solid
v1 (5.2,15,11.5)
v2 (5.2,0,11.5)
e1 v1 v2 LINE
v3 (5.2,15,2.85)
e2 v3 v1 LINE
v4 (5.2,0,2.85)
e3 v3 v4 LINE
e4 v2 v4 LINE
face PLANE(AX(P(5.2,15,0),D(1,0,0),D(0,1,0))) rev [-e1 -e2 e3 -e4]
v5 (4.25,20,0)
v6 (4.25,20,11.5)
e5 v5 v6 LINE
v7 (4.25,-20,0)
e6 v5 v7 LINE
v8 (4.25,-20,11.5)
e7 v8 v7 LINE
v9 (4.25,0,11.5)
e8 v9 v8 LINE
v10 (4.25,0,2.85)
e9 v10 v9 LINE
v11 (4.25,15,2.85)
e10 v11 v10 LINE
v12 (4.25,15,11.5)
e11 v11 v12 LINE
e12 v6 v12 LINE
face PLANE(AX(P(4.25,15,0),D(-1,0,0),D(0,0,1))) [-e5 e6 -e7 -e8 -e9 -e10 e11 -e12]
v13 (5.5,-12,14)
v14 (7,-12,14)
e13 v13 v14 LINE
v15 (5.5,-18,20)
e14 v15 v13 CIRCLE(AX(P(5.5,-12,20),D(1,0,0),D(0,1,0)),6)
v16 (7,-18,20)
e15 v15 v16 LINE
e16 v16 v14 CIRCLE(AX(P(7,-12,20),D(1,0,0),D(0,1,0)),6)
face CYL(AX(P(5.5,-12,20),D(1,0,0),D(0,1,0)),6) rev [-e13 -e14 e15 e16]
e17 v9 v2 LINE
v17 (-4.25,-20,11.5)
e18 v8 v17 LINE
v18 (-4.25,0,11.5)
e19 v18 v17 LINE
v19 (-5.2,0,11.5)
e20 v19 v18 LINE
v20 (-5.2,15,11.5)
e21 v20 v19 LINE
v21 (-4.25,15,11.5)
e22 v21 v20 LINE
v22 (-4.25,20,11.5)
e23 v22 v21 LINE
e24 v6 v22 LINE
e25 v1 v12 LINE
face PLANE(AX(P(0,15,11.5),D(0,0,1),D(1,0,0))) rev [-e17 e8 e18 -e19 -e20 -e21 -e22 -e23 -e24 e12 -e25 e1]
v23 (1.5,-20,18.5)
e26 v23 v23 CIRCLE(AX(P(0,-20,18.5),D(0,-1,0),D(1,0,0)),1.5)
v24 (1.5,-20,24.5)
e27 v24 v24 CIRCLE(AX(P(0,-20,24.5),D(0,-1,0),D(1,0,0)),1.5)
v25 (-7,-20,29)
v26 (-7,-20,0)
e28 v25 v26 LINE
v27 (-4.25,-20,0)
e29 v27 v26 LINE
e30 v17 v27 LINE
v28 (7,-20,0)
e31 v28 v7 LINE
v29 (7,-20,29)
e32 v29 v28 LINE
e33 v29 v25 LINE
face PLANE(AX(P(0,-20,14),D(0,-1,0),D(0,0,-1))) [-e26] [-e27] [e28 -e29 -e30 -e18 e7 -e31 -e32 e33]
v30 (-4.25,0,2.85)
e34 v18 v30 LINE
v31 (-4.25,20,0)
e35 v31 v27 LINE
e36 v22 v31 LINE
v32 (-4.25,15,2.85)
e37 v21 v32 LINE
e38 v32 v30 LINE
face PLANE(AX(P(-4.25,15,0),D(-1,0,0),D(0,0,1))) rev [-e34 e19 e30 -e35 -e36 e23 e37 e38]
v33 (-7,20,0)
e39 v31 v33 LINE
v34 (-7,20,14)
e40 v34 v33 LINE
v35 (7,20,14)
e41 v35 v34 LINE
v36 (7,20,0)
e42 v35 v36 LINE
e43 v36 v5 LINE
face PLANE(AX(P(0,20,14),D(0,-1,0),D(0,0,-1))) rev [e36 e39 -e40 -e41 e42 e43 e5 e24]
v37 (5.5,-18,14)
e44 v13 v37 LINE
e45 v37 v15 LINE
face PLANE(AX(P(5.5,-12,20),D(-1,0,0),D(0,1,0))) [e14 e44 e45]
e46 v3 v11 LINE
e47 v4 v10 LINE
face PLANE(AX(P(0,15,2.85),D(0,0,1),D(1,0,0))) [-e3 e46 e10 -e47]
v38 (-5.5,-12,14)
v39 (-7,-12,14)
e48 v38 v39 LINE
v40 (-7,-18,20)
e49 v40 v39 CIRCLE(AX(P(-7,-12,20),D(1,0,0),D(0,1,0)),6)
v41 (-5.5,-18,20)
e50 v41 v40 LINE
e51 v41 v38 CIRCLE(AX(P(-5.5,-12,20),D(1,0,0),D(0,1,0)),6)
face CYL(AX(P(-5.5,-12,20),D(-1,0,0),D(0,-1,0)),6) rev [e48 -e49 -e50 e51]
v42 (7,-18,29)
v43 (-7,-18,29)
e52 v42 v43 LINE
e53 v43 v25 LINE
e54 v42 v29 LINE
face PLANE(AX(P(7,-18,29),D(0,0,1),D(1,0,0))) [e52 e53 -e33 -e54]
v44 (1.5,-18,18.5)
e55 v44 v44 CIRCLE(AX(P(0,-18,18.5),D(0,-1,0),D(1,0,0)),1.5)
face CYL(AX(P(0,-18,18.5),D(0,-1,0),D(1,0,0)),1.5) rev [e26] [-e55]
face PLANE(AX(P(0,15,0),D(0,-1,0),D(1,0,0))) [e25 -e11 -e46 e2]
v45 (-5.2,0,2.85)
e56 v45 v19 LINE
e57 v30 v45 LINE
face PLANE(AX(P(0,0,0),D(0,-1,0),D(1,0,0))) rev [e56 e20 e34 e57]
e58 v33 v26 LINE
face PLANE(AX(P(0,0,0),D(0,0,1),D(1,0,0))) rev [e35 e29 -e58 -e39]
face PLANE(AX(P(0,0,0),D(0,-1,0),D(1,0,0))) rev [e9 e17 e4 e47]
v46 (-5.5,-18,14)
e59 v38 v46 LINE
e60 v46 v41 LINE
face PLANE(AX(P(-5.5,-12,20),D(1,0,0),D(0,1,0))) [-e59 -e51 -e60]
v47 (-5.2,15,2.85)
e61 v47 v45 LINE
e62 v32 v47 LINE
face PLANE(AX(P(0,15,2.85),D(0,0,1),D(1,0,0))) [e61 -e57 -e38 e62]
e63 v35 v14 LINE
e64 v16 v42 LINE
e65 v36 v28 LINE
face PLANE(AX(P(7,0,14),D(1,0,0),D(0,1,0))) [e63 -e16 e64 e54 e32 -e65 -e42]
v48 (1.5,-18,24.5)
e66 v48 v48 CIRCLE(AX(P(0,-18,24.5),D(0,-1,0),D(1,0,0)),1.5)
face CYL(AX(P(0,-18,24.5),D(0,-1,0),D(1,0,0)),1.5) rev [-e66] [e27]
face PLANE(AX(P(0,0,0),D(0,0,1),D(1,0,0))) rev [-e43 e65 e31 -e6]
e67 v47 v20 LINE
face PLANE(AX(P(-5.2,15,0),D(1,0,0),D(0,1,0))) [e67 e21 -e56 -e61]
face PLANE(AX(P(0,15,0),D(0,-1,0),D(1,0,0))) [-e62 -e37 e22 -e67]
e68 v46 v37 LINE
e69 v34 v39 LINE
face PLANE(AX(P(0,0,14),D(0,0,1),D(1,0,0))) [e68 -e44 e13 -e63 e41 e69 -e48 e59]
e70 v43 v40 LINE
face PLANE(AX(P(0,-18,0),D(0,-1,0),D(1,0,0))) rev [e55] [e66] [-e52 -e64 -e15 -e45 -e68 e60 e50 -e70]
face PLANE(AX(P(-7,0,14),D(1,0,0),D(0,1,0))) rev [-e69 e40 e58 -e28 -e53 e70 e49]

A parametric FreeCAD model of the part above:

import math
import FreeCAD as App
import Part
import Sketcher
Q = App.Units.Quantity

doc = App.newDocument("Part")
params = doc.addObject("Spreadsheet::Sheet", "Params")
for row, (alias, value) in enumerate([
    ("sketch1_width", "14 mm"),
    ("sketch1_height", "40 mm"),
    ("pad1_length", "14 mm"),
    ("sketch2_width", "8.5 mm"),
    ("sketch2_width2", "10.4 mm"),
    ("sketch2_height", "8.65 mm"),
    ("sketch2_height2", "2.85 mm"),
    ("pocket1_length", "35 mm"),
    ("sketch3_diameter", "3 mm"),
    ("sketch3_width", "14 mm"),
    ("sketch3_height", "15 mm"),
    ("pad2_length", "2 mm"),
    ("sketch4_radius", "6 mm"),
    ("pad3_length", "1.5 mm"),
    ("sketch5_width", "8.5 mm"),
    ("sketch5_height", "11.5 mm"),
    ("sketch6_width", "0.95 mm"),
    ("sketch6_height", "8.65 mm"),
    ("pad4_length", "20 mm"),
], start=1):
    params.set(f"A{row}", alias)
    params.set(f"B{row}", "=" + value)
    params.setAlias(f"B{row}", alias)

body = doc.addObject("PartDesign::Body", "Body")

sketch1 = body.newObject("Sketcher::SketchObject", "Sketch")
sketch1.AttachmentSupport = (doc.getObject("XY_Plane"), [""])
sketch1.MapMode = "FlatFace"
sketch1.addGeometry([
    Part.LineSegment(App.Vector(-7, 20, 0), App.Vector(-7, -20, 0)),
    Part.LineSegment(App.Vector(-7, -20, 0), App.Vector(7, -20, 0)),
    Part.LineSegment(App.Vector(7, -20, 0), App.Vector(7, 20, 0)),
    Part.LineSegment(App.Vector(7, 20, 0), App.Vector(-7, 20, 0)),
], False)
sketch1.addConstraint([
    Sketcher.Constraint("Coincident", 0, 2, 1, 1),
    Sketcher.Constraint("Coincident", 1, 2, 2, 1),
    Sketcher.Constraint("Coincident", 2, 2, 3, 1),
    Sketcher.Constraint("Coincident", 3, 2, 0, 1),
    Sketcher.Constraint("Vertical", 0),
    Sketcher.Constraint("Horizontal", 1),
    Sketcher.Constraint("Vertical", 2),
    Sketcher.Constraint("Horizontal", 3),
    Sketcher.Constraint("Symmetric", 0, 2, 2, 2, -1, 1),
    Sketcher.Constraint("DistanceX", 1, 1, 1, 2, Q("14 mm")),
    Sketcher.Constraint("DistanceY", 0, 2, 0, 1, Q("40 mm")),
])
sketch1.setExpression("Constraints[9]", "Params.sketch1_width")
sketch1.setExpression("Constraints[10]", "Params.sketch1_height")
pad1 = body.newObject("PartDesign::Pad", "Pad")
pad1.Profile = sketch1
pad1.setExpression("Length", "Params.pad1_length")

sketch2 = body.newObject("Sketcher::SketchObject", "Sketch001")
sketch2.AttachmentSupport = (doc.getObject("XZ_Plane"), [""])
sketch2.MapMode = "FlatFace"
sketch2.AttachmentOffset = App.Placement(App.Vector(0, 0, 20), App.Rotation())
sketch2.addGeometry([
    Part.LineSegment(App.Vector(-5.2, 11.5, 0), App.Vector(-5.2, 2.9, 0)),
    Part.LineSegment(App.Vector(-5.2, 2.9, 0), App.Vector(-4.2, 2.9, 0)),
    Part.LineSegment(App.Vector(-4.2, 2.9, 0), App.Vector(-4.2, 0, 0)),
    Part.LineSegment(App.Vector(-4.2, 0, 0), App.Vector(4.2, 0, 0)),
    Part.LineSegment(App.Vector(4.2, 0, 0), App.Vector(4.2, 2.9, 0)),
    Part.LineSegment(App.Vector(4.2, 2.9, 0), App.Vector(5.2, 2.9, 0)),
    Part.LineSegment(App.Vector(5.2, 2.9, 0), App.Vector(5.2, 11.5, 0)),
    Part.LineSegment(App.Vector(5.2, 11.5, 0), App.Vector(-5.2, 11.5, 0)),
], False)
sketch2.addConstraint([
    Sketcher.Constraint("Coincident", 0, 2, 1, 1),
    Sketcher.Constraint("Coincident", 1, 2, 2, 1),
    Sketcher.Constraint("Coincident", 2, 2, 3, 1),
    Sketcher.Constraint("Coincident", 3, 2, 4, 1),
    Sketcher.Constraint("Coincident", 4, 2, 5, 1),
    Sketcher.Constraint("Coincident", 5, 2, 6, 1),
    Sketcher.Constraint("Coincident", 6, 2, 7, 1),
    Sketcher.Constraint("Coincident", 7, 2, 0, 1),
    Sketcher.Constraint("Vertical", 0),
    Sketcher.Constraint("Horizontal", 1),
    Sketcher.Constraint("Vertical", 2),
    Sketcher.Constraint("Horizontal", 3),
    Sketcher.Constraint("Vertical", 4),
    Sketcher.Constraint("Horizontal", 5),
    Sketcher.Constraint("Vertical", 6),
    Sketcher.Constraint("Horizontal", 7),
    Sketcher.Constraint("Symmetric", 2, 2, 3, 2, -1, 1),
    Sketcher.Constraint("Symmetric", 0, 2, 5, 2, -2),
    Sketcher.Constraint("DistanceX", 3, 1, 3, 2, Q("8.5 mm")),
    Sketcher.Constraint("DistanceX", 7, 2, 7, 1, Q("10.4 mm")),
    Sketcher.Constraint("DistanceY", 0, 2, 0, 1, Q("8.65 mm")),
    Sketcher.Constraint("DistanceY", 2, 2, 2, 1, Q("2.85 mm")),
])
sketch2.setExpression("Constraints[18]", "Params.sketch2_width")
sketch2.setExpression("Constraints[19]", "Params.sketch2_width2")
sketch2.setExpression("Constraints[20]", "Params.sketch2_height")
sketch2.setExpression("Constraints[21]", "Params.sketch2_height2")
pocket1 = body.newObject("PartDesign::Pocket", "Pocket")
pocket1.Profile = sketch2
pocket1.setExpression("Length", "Params.pocket1_length")

sketch3 = body.newObject("Sketcher::SketchObject", "Sketch002")
sketch3.AttachmentSupport = (doc.getObject("XZ_Plane"), [""])
sketch3.MapMode = "FlatFace"
sketch3.AttachmentOffset = App.Placement(App.Vector(0, 0, 20), App.Rotation())
sketch3.addGeometry([
    Part.LineSegment(App.Vector(-7, 29, 0), App.Vector(-7, 14, 0)),
    Part.LineSegment(App.Vector(-7, 14, 0), App.Vector(7, 14, 0)),
    Part.LineSegment(App.Vector(7, 14, 0), App.Vector(7, 29, 0)),
    Part.LineSegment(App.Vector(7, 29, 0), App.Vector(-7, 29, 0)),
    Part.Circle(App.Vector(0, 18.5, 0), App.Vector(0, 0, 1), 1.5),
    Part.Circle(App.Vector(0, 24.5, 0), App.Vector(0, 0, 1), 1.5),
], False)
sketch3.addConstraint([
    Sketcher.Constraint("Coincident", 0, 2, 1, 1),
    Sketcher.Constraint("Coincident", 1, 2, 2, 1),
    Sketcher.Constraint("Coincident", 2, 2, 3, 1),
    Sketcher.Constraint("Coincident", 3, 2, 0, 1),
    Sketcher.Constraint("Vertical", 0),
    Sketcher.Constraint("Horizontal", 1),
    Sketcher.Constraint("Vertical", 2),
    Sketcher.Constraint("Horizontal", 3),
    Sketcher.Constraint("Equal", 4, 5),
    Sketcher.Constraint("PointOnObject", 4, 3, -2),
    Sketcher.Constraint("PointOnObject", 5, 3, -2),
    Sketcher.Constraint("Diameter", 4, Q("3 mm")),
    Sketcher.Constraint("DistanceX", 1, 1, 1, 2, Q("14 mm")),
    Sketcher.Constraint("DistanceY", 0, 2, 0, 1, Q("15 mm")),
    Sketcher.Constraint("DistanceX", 0, 2, -1, 1, Q("7 mm")),
    Sketcher.Constraint("DistanceY", -1, 1, 0, 2, Q("14 mm")),
    Sketcher.Constraint("DistanceY", 4, 3, 5, 3, Q("6 mm")),
    Sketcher.Constraint("DistanceY", -1, 1, 4, 3, Q("18.5 mm")),
])
sketch3.setExpression("Constraints[11]", "Params.sketch3_diameter")
sketch3.setExpression("Constraints[12]", "Params.sketch3_width")
sketch3.setExpression("Constraints[13]", "Params.sketch3_height")
pad2 = body.newObject("PartDesign::Pad", "Pad001")
pad2.Profile = sketch3
pad2.setExpression("Length", "Params.pad2_length")
pad2.Reversed = True

sketch4 = body.newObject("Sketcher::SketchObject", "Sketch003")
sketch4.AttachmentSupport = (doc.getObject("YZ_Plane"), [""])
sketch4.MapMode = "FlatFace"
sketch4.AttachmentOffset = App.Placement(App.Vector(0, 0, -7), App.Rotation())
sketch4.addGeometry([
    Part.LineSegment(App.Vector(-12, 14, 0), App.Vector(-18, 14, 0)),
    Part.LineSegment(App.Vector(-18, 14, 0), App.Vector(-18, 20, 0)),
    Part.ArcOfCircle(Part.Circle(App.Vector(-12, 20, 0), App.Vector(0, 0, 1), 6), math.radians(180), math.radians(270)),
], False)
sketch4.addConstraint([
    Sketcher.Constraint("Coincident", 0, 2, 1, 1),
    Sketcher.Constraint("Tangent", 1, 2, 2, 1),
    Sketcher.Constraint("Tangent", 2, 2, 0, 1),
    Sketcher.Constraint("Horizontal", 0),
    Sketcher.Constraint("Vertical", 1),
    Sketcher.Constraint("Radius", 2, Q("6 mm")),
    Sketcher.Constraint("DistanceX", 2, 3, -1, 1, Q("12 mm")),
    Sketcher.Constraint("DistanceY", -1, 1, 2, 3, Q("20 mm")),
])
sketch4.setExpression("Constraints[5]", "Params.sketch4_radius")
pad3 = body.newObject("PartDesign::Pad", "Pad002")
pad3.Profile = sketch4
pad3.setExpression("Length", "Params.pad3_length")
doc.recompute()

mirrored = body.newObject("PartDesign::Mirrored", "Mirrored")
mirrored.Originals = [pad3]
mirrored.MirrorPlane = (doc.getObject("YZ_Plane"), [""])
body.Tip = mirrored

sketch5 = body.newObject("Sketcher::SketchObject", "Sketch004")
sketch5.AttachmentSupport = (doc.getObject("XZ_Plane"), [""])
sketch5.MapMode = "FlatFace"
sketch5.AttachmentOffset = App.Placement(App.Vector(0, 0, -15), App.Rotation())
sketch5.addGeometry([
    Part.LineSegment(App.Vector(-4, 12, 0), App.Vector(-4, 0, 0)),
    Part.LineSegment(App.Vector(-4, 0, 0), App.Vector(4, 0, 0)),
    Part.LineSegment(App.Vector(4, 0, 0), App.Vector(4, 12, 0)),
    Part.LineSegment(App.Vector(4, 12, 0), App.Vector(-4, 12, 0)),
], False)
sketch5.addConstraint([
    Sketcher.Constraint("Coincident", 0, 2, 1, 1),
    Sketcher.Constraint("Coincident", 1, 2, 2, 1),
    Sketcher.Constraint("Coincident", 2, 2, 3, 1),
    Sketcher.Constraint("Coincident", 3, 2, 0, 1),
    Sketcher.Constraint("Vertical", 0),
    Sketcher.Constraint("Horizontal", 1),
    Sketcher.Constraint("Vertical", 2),
    Sketcher.Constraint("Horizontal", 3),
    Sketcher.Constraint("Symmetric", 0, 2, 1, 2, -1, 1),
    Sketcher.Constraint("DistanceX", 1, 1, 1, 2, Q("8.5 mm")),
    Sketcher.Constraint("DistanceY", 0, 2, 0, 1, Q("11.5 mm")),
])
sketch5.setExpression("Constraints[9]", "Params.sketch5_width")
sketch5.setExpression("Constraints[10]", "Params.sketch5_height")
pocket2 = body.newObject("PartDesign::Pocket", "Pocket001")
pocket2.Profile = sketch5
pocket2.Type = "ThroughAll"

sketch6 = body.newObject("Sketcher::SketchObject", "Sketch005")
sketch6.AttachmentSupport = (doc.getObject("XZ_Plane"), [""])
sketch6.MapMode = "FlatFace"
sketch6.AttachmentOffset = App.Placement(App.Vector(0, 0, 20), App.Rotation())
sketch6.addGeometry([
    Part.LineSegment(App.Vector(4.2, 11.5, 0), App.Vector(4.2, 2.9, 0)),
    Part.LineSegment(App.Vector(4.2, 2.9, 0), App.Vector(5.2, 2.9, 0)),
    Part.LineSegment(App.Vector(5.2, 2.9, 0), App.Vector(5.2, 11.5, 0)),
    Part.LineSegment(App.Vector(5.2, 11.5, 0), App.Vector(4.2, 11.5, 0)),
    Part.LineSegment(App.Vector(-5.2, 11.5, 0), App.Vector(-5.2, 2.9, 0)),
    Part.LineSegment(App.Vector(-5.2, 2.9, 0), App.Vector(-4.2, 2.9, 0)),
    Part.LineSegment(App.Vector(-4.2, 2.9, 0), App.Vector(-4.2, 11.5, 0)),
    Part.LineSegment(App.Vector(-4.2, 11.5, 0), App.Vector(-5.2, 11.5, 0)),
], False)
sketch6.addConstraint([
    Sketcher.Constraint("Coincident", 0, 2, 1, 1),
    Sketcher.Constraint("Coincident", 1, 2, 2, 1),
    Sketcher.Constraint("Coincident", 2, 2, 3, 1),
    Sketcher.Constraint("Coincident", 3, 2, 0, 1),
    Sketcher.Constraint("Coincident", 4, 2, 5, 1),
    Sketcher.Constraint("Coincident", 5, 2, 6, 1),
    Sketcher.Constraint("Coincident", 6, 2, 7, 1),
    Sketcher.Constraint("Coincident", 7, 2, 4, 1),
    Sketcher.Constraint("Vertical", 0),
    Sketcher.Constraint("Horizontal", 1),
    Sketcher.Constraint("Vertical", 2),
    Sketcher.Constraint("Horizontal", 3),
    Sketcher.Constraint("Vertical", 4),
    Sketcher.Constraint("Horizontal", 5),
    Sketcher.Constraint("Vertical", 6),
    Sketcher.Constraint("Horizontal", 7),
    Sketcher.Constraint("Symmetric", 1, 2, 4, 2, -2),
    Sketcher.Constraint("Symmetric", 3, 2, 6, 2, -2),
    Sketcher.Constraint("DistanceX", 1, 1, 1, 2, Q("0.95 mm")),
    Sketcher.Constraint("DistanceY", 0, 2, 0, 1, Q("8.65 mm")),
    Sketcher.Constraint("DistanceX", -1, 1, 1, 2, Q("5.2 mm")),
    Sketcher.Constraint("DistanceY", -1, 1, 2, 2, Q("11.5 mm")),
])
sketch6.setExpression("Constraints[18]", "Params.sketch6_width")
sketch6.setExpression("Constraints[19]", "Params.sketch6_height")
pad4 = body.newObject("PartDesign::Pad", "Pad003")
pad4.Profile = sketch6
pad4.setExpression("Length", "Params.pad4_length")
pad4.Reversed = True

doc.recompute()
